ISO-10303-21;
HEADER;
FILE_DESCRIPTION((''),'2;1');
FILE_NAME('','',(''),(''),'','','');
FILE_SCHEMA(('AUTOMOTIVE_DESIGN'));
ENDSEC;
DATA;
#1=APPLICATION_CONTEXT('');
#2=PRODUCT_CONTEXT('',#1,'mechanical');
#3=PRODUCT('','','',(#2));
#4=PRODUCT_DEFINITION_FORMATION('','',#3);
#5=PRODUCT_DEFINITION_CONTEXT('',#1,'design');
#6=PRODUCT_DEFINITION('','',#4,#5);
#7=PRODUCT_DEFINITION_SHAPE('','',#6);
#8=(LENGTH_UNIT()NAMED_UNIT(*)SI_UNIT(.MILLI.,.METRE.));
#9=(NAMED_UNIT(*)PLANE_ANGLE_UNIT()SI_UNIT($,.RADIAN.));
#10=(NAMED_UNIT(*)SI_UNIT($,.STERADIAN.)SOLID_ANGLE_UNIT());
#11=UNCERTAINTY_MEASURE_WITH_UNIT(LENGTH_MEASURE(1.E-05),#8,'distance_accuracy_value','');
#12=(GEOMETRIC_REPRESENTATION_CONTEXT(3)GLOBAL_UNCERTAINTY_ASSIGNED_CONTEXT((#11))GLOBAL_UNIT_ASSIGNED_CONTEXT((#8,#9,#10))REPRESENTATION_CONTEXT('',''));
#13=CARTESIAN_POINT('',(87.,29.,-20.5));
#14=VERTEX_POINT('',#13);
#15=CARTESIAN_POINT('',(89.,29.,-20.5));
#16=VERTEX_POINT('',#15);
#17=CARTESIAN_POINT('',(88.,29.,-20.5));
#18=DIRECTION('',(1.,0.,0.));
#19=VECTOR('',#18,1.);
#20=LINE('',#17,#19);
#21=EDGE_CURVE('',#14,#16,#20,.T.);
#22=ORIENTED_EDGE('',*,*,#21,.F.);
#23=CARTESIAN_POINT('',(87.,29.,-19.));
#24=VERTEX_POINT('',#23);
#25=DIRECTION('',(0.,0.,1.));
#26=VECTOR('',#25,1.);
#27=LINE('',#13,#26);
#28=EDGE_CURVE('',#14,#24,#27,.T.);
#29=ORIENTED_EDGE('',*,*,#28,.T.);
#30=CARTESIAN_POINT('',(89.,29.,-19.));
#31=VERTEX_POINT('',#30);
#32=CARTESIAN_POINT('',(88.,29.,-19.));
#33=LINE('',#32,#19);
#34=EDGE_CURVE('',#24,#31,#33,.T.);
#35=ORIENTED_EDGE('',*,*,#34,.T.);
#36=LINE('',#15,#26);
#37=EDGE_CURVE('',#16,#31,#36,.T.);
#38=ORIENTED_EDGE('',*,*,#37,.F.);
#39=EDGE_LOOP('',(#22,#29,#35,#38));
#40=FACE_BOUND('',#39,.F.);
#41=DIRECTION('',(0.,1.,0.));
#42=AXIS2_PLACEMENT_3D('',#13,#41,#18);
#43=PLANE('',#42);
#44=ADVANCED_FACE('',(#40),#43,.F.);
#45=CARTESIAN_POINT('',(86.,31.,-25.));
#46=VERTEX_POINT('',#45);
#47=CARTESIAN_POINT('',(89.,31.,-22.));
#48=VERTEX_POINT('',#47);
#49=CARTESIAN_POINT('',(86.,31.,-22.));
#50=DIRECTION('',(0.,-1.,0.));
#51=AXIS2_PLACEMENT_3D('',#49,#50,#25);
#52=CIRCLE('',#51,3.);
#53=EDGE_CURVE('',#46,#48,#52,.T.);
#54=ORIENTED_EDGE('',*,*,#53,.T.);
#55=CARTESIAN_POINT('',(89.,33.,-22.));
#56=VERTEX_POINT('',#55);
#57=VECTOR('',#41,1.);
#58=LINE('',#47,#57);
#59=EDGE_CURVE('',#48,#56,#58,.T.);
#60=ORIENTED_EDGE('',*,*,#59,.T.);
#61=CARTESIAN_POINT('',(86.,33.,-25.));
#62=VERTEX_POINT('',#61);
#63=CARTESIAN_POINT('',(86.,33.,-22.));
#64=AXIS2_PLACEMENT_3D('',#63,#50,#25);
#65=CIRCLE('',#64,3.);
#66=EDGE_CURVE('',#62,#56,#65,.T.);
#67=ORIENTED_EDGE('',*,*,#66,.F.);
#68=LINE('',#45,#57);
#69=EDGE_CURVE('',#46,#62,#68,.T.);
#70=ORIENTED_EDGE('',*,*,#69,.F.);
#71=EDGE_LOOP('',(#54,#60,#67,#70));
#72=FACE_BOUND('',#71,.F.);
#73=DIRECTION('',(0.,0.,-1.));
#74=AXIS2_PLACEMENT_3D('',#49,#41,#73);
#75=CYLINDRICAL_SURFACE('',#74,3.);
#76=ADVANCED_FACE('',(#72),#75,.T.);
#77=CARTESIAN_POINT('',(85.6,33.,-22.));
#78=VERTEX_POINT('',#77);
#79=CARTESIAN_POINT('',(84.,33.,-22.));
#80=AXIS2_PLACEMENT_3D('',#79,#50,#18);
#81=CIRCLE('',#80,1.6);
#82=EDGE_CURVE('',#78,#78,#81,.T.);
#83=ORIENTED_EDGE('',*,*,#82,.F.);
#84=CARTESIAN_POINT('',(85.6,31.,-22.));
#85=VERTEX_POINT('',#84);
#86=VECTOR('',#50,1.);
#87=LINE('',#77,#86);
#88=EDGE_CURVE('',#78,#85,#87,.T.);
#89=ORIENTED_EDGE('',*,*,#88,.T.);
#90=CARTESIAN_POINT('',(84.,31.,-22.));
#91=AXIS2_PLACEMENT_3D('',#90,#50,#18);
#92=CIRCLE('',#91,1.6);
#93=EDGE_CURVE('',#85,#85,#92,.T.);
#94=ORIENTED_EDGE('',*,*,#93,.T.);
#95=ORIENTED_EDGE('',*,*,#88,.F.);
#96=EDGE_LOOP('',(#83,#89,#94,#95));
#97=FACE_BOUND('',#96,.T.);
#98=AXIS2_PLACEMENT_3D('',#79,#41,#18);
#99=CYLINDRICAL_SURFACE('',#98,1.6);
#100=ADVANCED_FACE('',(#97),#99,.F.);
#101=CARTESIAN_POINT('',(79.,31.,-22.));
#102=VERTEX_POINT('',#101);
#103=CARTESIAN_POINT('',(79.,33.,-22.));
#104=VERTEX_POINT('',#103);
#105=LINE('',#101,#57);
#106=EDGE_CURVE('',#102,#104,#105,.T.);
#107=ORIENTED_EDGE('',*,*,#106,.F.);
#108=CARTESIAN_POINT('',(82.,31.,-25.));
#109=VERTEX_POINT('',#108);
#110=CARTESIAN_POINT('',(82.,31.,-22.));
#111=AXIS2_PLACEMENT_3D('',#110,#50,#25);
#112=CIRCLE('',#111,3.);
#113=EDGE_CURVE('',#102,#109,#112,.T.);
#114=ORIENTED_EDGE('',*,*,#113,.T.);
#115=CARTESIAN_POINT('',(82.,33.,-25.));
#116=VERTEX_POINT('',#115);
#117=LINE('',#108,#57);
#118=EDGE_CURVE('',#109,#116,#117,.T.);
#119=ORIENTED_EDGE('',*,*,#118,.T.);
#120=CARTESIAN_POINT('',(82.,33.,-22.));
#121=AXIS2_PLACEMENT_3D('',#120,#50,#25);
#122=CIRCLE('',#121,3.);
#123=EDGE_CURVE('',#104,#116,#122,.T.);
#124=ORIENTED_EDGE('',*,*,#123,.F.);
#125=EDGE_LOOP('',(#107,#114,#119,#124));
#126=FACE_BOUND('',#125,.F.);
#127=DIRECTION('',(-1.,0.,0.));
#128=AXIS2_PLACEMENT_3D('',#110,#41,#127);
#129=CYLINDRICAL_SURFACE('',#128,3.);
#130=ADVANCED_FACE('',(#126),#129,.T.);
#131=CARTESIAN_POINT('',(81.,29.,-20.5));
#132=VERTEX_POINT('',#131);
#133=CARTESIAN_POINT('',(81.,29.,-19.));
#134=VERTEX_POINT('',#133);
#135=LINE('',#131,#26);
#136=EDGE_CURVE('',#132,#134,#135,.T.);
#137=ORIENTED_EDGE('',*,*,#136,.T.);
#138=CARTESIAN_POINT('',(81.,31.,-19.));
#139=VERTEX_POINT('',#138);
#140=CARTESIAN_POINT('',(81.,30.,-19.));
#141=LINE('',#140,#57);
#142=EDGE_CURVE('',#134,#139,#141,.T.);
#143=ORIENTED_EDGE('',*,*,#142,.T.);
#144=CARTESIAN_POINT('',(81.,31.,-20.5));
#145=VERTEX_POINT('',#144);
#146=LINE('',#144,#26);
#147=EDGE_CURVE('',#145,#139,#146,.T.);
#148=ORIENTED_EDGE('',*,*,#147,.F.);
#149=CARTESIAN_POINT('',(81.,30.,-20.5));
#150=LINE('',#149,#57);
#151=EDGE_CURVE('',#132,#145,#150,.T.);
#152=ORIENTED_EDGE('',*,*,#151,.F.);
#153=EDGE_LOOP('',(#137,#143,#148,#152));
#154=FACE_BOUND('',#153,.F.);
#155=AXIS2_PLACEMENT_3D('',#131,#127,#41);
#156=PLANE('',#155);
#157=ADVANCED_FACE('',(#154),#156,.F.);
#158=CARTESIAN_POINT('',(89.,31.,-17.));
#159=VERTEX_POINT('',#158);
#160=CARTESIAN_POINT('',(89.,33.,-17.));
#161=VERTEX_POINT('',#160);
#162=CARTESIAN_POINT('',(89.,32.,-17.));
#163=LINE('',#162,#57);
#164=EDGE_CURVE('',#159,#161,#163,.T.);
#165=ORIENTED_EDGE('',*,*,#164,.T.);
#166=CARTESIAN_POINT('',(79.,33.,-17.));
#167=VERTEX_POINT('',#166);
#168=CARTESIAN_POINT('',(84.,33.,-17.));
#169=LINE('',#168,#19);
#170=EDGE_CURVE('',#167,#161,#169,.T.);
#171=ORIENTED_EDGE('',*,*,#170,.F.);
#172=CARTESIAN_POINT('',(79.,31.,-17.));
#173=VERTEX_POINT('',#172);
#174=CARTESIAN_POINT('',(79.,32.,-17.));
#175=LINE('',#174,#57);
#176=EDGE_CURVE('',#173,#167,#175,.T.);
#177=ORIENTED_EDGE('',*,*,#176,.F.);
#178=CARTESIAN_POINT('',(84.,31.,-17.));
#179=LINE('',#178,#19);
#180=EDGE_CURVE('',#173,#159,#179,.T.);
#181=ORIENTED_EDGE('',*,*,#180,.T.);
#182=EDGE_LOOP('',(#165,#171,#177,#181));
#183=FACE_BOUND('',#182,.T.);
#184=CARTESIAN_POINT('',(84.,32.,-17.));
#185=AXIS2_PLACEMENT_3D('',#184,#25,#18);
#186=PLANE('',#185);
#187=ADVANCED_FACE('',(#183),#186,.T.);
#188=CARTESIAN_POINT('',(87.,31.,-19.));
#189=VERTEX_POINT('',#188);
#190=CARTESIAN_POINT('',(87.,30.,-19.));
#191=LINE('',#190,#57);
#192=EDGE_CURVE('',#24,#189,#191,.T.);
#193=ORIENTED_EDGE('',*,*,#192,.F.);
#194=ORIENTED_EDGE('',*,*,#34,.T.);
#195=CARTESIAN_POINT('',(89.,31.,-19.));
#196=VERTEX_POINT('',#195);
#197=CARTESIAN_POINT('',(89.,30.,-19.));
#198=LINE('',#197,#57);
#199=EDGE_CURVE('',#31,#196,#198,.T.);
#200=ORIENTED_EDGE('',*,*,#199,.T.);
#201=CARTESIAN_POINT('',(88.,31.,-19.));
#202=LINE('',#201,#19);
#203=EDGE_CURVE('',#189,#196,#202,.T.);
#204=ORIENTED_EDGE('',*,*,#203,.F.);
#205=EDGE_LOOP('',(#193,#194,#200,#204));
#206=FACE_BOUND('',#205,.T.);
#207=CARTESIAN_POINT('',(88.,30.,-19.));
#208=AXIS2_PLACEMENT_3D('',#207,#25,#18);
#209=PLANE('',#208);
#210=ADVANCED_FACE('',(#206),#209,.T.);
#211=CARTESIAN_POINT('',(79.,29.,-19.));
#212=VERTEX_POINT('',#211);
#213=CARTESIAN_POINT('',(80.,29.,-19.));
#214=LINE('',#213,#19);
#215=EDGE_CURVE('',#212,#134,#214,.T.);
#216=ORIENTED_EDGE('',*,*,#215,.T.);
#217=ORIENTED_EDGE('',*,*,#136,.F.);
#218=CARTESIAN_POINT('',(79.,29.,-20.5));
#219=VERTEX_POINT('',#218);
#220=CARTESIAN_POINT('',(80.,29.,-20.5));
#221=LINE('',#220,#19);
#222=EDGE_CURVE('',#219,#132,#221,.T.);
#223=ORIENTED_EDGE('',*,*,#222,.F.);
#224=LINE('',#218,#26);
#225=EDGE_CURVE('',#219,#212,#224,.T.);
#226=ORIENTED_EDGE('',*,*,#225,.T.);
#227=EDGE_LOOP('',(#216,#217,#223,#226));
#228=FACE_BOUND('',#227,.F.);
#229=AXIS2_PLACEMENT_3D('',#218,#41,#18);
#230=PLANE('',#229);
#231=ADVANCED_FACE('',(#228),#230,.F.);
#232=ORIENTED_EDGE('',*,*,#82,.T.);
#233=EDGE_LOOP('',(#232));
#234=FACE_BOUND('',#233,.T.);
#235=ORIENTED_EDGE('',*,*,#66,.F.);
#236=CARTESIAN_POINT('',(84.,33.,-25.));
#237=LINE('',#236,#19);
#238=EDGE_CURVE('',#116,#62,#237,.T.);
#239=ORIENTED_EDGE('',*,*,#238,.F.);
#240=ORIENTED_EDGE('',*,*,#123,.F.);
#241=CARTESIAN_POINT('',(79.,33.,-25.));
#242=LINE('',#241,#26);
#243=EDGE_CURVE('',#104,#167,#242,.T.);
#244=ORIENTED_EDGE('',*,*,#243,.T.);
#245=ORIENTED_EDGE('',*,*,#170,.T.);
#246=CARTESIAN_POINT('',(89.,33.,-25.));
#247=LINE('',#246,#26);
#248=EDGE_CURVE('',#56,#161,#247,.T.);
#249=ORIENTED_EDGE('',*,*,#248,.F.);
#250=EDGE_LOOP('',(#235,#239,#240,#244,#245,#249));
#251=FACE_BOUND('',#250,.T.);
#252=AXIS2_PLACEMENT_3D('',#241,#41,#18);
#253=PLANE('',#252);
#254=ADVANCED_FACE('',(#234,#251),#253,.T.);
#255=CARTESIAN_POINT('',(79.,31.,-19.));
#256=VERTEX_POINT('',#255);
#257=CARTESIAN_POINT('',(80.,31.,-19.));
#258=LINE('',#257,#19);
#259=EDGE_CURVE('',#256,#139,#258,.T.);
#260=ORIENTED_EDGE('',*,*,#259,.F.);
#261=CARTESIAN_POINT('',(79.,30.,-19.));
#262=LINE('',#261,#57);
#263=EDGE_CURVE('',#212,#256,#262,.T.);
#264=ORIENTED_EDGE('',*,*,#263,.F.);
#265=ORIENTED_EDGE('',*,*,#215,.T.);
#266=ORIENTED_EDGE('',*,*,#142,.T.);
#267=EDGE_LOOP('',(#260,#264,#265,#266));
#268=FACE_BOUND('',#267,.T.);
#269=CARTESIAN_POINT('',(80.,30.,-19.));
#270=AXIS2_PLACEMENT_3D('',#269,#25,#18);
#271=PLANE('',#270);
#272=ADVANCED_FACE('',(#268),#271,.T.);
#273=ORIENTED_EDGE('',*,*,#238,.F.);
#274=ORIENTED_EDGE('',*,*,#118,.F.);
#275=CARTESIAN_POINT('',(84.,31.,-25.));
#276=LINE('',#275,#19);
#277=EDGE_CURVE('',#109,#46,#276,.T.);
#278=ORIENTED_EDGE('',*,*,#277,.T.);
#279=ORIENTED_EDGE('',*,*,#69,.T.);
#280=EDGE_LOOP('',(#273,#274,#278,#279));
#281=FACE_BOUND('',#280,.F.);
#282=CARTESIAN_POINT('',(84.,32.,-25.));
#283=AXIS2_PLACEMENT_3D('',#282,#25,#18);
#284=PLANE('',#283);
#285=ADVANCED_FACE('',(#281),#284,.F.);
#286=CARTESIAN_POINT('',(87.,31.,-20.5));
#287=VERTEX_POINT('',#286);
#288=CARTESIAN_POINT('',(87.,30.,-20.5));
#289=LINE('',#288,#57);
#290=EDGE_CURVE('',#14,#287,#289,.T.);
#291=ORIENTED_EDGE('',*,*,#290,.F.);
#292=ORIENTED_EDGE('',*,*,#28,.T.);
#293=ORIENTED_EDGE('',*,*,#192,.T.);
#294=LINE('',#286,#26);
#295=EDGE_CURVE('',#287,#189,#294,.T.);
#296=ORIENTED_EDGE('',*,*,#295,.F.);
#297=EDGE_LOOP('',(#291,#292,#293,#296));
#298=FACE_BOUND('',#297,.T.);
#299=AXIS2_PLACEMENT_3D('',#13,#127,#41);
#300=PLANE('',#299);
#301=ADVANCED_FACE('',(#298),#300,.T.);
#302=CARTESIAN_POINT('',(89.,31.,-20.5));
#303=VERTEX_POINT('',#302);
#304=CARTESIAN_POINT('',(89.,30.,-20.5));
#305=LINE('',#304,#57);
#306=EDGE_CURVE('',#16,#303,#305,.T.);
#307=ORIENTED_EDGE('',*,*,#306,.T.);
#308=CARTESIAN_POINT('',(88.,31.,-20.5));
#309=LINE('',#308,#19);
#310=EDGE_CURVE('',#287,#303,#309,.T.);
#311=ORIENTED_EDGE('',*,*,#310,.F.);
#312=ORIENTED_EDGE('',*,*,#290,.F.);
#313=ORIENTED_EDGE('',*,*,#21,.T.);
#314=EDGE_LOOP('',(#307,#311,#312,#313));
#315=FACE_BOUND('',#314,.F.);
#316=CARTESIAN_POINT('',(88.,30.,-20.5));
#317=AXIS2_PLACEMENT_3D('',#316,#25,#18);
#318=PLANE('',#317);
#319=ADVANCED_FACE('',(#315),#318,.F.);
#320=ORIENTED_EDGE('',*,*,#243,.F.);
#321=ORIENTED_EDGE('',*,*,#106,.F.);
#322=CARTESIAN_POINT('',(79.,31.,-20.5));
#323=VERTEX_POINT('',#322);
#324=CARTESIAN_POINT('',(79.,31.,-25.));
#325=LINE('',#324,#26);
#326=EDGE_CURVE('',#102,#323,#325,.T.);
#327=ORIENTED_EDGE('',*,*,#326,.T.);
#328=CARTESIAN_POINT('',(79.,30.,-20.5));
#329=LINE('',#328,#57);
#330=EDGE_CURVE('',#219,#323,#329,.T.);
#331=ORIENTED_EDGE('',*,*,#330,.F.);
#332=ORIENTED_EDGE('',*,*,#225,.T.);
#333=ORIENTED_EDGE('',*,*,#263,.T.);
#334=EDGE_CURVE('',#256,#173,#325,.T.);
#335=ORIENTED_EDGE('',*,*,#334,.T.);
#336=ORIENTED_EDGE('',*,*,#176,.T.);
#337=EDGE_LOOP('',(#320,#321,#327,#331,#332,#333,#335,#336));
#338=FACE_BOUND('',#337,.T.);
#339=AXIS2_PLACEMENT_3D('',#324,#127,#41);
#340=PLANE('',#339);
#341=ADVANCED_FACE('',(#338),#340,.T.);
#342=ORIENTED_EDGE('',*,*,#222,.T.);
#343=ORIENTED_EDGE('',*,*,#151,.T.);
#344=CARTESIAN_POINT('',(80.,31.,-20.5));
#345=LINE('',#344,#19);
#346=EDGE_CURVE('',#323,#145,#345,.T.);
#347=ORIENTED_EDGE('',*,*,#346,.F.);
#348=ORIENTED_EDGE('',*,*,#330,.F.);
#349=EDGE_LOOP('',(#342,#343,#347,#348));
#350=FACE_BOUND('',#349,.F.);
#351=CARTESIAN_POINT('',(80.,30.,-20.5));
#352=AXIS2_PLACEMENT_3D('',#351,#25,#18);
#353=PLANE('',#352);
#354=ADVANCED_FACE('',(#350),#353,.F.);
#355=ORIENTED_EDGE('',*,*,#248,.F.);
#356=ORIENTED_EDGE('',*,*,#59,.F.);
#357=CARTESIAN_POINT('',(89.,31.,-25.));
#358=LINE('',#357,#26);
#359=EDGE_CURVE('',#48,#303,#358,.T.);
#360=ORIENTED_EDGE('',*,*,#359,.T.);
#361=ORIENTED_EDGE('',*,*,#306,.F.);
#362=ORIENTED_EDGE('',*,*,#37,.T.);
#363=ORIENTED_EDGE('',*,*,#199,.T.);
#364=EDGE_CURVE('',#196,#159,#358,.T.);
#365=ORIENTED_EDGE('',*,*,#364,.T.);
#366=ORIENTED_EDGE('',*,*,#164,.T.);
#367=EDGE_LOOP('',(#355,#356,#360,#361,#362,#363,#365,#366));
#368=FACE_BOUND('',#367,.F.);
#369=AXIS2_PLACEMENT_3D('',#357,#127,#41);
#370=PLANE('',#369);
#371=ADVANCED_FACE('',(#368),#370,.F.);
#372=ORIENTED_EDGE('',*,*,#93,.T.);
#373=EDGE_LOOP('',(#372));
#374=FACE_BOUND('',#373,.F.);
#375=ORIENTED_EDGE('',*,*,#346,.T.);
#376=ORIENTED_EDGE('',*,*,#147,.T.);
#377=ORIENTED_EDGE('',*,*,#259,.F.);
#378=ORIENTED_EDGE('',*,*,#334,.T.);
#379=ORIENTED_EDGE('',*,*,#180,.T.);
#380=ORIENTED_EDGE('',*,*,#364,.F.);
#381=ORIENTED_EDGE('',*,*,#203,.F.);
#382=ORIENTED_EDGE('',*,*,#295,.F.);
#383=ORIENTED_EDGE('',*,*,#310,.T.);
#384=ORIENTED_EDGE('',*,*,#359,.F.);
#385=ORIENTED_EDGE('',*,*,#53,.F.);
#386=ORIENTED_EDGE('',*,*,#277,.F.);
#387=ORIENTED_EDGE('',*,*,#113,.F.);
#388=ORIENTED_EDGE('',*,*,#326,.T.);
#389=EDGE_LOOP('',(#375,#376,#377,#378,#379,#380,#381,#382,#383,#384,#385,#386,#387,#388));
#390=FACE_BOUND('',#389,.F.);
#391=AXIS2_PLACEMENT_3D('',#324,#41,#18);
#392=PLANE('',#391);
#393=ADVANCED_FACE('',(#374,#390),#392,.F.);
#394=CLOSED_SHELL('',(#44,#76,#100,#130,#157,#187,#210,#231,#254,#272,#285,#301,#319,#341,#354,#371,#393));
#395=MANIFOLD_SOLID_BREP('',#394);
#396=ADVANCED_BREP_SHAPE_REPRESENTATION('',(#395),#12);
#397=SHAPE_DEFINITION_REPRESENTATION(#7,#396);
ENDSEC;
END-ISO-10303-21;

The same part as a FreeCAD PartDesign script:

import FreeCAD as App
import Part
import Sketcher
from FreeCAD import Vector


def edges_at(feature, points):
    """Names of the edges that pass closest to the given points."""
    edges = feature.Shape.Edges
    near = lambda p: min(range(len(edges)), key=lambda i: edges[i].distToShape(Part.Vertex(*p))[0])
    return sorted({f"Edge{near(p) + 1}" for p in points})


def add_polygon(sketch, points):
    """Adds a closed chain of lines whose ends are joined by coincident constraints."""
    first, n = sketch.GeometryCount, len(points)
    for a, b in zip(points, points[1:] + points[:1]):
        sketch.addGeometry(Part.LineSegment(App.Vector(*a, 0), App.Vector(*b, 0)), False)
    for i in range(n):
        sketch.addConstraint(Sketcher.Constraint("Coincident", first + i, 2, first + (i + 1) % n, 1))

doc = App.newDocument("Part")
body = doc.addObject("PartDesign::Body", "Body")

# Sketch on XY plane
sketch1 = body.newObject("Sketcher::SketchObject", "Sketch")
sketch1.AttachmentSupport = (doc.getObject("XY_Plane"), [""])
sketch1.MapMode = "FlatFace"
sketch1.AttachmentOffset = App.Placement(Vector(0, 0, -20.5), App.Rotation())
add_polygon(sketch1, [(79, 31), (79, 29), (81, 29), (81, 31)])  # lines 0-3
sketch1.addConstraint([
    Sketcher.Constraint("Vertical", 0),
    Sketcher.Constraint("Horizontal", 1),
    Sketcher.Constraint("Vertical", 2),
    Sketcher.Constraint("Horizontal", 3),
    Sketcher.Constraint("Equal", 3, 0),
    Sketcher.Constraint("DistanceX", 1, 1, 1, 2, 2.0),
    Sketcher.Constraint("DistanceX", -1, 1, 0, 2, 79.0),
    Sketcher.Constraint("DistanceY", -1, 1, 0, 2, 29.0),
])
pad1 = body.newObject("PartDesign::Pad", "Pad")
pad1.Profile = sketch1
pad1.Length = 1.5
body2 = doc.addObject("PartDesign::Body", "Body001")

# Sketch on XY plane
sketch2 = body2.newObject("Sketcher::SketchObject", "Sketch001")
sketch2.AttachmentSupport = (doc.getObject("XY_Plane001"), [""])
sketch2.MapMode = "FlatFace"
sketch2.AttachmentOffset = App.Placement(Vector(0, 0, -20.5), App.Rotation())
add_polygon(sketch2, [(87, 31), (87, 29), (89, 29), (89, 31)])  # lines 0-3
sketch2.addConstraint([
    Sketcher.Constraint("Vertical", 0),
    Sketcher.Constraint("Horizontal", 1),
    Sketcher.Constraint("Vertical", 2),
    Sketcher.Constraint("Horizontal", 3),
    Sketcher.Constraint("Equal", 3, 0),
    Sketcher.Constraint("DistanceX", 1, 1, 1, 2, 2.0),
    Sketcher.Constraint("DistanceX", -1, 1, 0, 2, 87.0),
    Sketcher.Constraint("DistanceY", -1, 1, 0, 2, 29.0),
])
pad2 = body2.newObject("PartDesign::Pad", "Pad001")
pad2.Profile = sketch2
pad2.Length = 1.5
body3 = doc.addObject("PartDesign::Body", "Body002")

# Sketch on XZ plane
sketch3 = body3.newObject("Sketcher::SketchObject", "Sketch002")
sketch3.AttachmentSupport = (doc.getObject("XZ_Plane002"), [""])
sketch3.MapMode = "FlatFace"
sketch3.AttachmentOffset = App.Placement(Vector(0, 0, -33), App.Rotation())
sketch3.addGeometry(Part.Circle(Vector(84, -22, 0), Vector(0, 0, 1), 1.6), False)
sketch3.addConstraint([
    Sketcher.Constraint("Diameter", 0, 3.2),
    Sketcher.Constraint("DistanceX", -1, 1, 0, 3, 84.0),
    Sketcher.Constraint("DistanceY", 0, 3, -1, 1, 22.0),
])
pad3 = body3.newObject("PartDesign::Pad", "Pad002")
pad3.Profile = sketch3
pad3.Length = 2
body4 = doc.addObject("PartDesign::Body", "Body003")

# Sketch on XY plane
sketch4 = body4.newObject("Sketcher::SketchObject", "Sketch003")
sketch4.AttachmentSupport = (doc.getObject("XY_Plane003"), [""])
sketch4.MapMode = "FlatFace"
sketch4.AttachmentOffset = App.Placement(Vector(0, 0, -25), App.Rotation())
add_polygon(sketch4, [(79, 33), (79, 31), (89, 31), (89, 33)])  # lines 0-3
sketch4.addConstraint([
    Sketcher.Constraint("Vertical", 0),
    Sketcher.Constraint("Horizontal", 1),
    Sketcher.Constraint("Vertical", 2),
    Sketcher.Constraint("Horizontal", 3),
    Sketcher.Constraint("DistanceX", 1, 1, 1, 2, 10.0),
    Sketcher.Constraint("DistanceY", 0, 2, 0, 1, 2.0),
    Sketcher.Constraint("DistanceX", -1, 1, 0, 2, 79.0),
    Sketcher.Constraint("DistanceY", -1, 1, 0, 2, 31.0),
])
pad4 = body4.newObject("PartDesign::Pad", "Pad003")
pad4.Profile = sketch4
pad4.Length = 8
doc.recompute()

boolean = body4.newObject("PartDesign::Boolean", "Boolean")
boolean.Type = "Cut"
boolean.addObjects([body3])
doc.recompute()

fillet = body4.newObject("PartDesign::Fillet", "Fillet")
fillet.Base = (boolean, edges_at(boolean, [(79, 32, -25), (89, 32, -25)]))
fillet.Radius = 3
doc.recompute()

boolean2 = body4.newObject("PartDesign::Boolean", "Boolean001")
boolean2.Type = "Fuse"
boolean2.addObjects([body])
doc.recompute()

boolean3 = body4.newObject("PartDesign::Boolean", "Boolean002")
boolean3.Type = "Fuse"
boolean3.addObjects([body2])

doc.recompute()
